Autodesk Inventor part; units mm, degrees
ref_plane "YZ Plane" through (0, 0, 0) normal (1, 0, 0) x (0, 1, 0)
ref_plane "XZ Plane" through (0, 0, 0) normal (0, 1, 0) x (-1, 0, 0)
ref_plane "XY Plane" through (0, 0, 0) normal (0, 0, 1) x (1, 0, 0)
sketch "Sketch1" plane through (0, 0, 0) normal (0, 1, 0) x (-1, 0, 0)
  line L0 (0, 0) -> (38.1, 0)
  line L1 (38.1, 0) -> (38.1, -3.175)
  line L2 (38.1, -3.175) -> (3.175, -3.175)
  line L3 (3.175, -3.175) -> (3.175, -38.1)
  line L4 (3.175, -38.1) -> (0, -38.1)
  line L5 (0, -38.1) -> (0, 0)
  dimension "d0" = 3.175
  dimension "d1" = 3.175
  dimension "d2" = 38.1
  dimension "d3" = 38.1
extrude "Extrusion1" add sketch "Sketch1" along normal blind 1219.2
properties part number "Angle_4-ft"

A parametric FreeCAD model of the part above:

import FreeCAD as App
import Part
import Sketcher

V = App.Vector
Q = App.Units.Quantity


def add_polygon(sketch, points):
    """Adds a closed chain of lines whose ends are joined by coincident constraints."""
    first, n = sketch.GeometryCount, len(points)
    for a, b in zip(points, points[1:] + points[:1]):
        sketch.addGeometry(Part.LineSegment(App.Vector(*a, 0), App.Vector(*b, 0)), False)
    for i in range(n):
        sketch.addConstraint(Sketcher.Constraint("Coincident", first + i, 2, first + (i + 1) % n, 1))

doc = App.newDocument("Part")
body = doc.addObject("PartDesign::Body", "Body")

# Sketch on XZ plane
sketch1 = body.newObject("Sketcher::SketchObject", "Sketch")
sketch1.AttachmentSupport = (doc.getObject("XZ_Plane"), [""])
sketch1.MapMode = "FlatFace"
add_polygon(sketch1, [(-38.1, 0), (0, 0), (0, -38.1), (-3.175, -38.1), (-3.175, -3.175), (-38.1, -3.175)])  # lines 0-5
sketch1.addConstraint([
    Sketcher.Constraint("Horizontal", 0),
    Sketcher.Constraint("Vertical", 1),
    Sketcher.Constraint("Horizontal", 2),
    Sketcher.Constraint("Vertical", 3),
    Sketcher.Constraint("Horizontal", 4),
    Sketcher.Constraint("Vertical", 5),
    Sketcher.Constraint("Coincident", 0, 2, -1, 1),
    Sketcher.Constraint("Equal", 0, 1),
    Sketcher.Constraint("Equal", 4, 3),
    Sketcher.Constraint("DistanceX", 0, 1, 0, 2, Q("1.5 in")),
    Sketcher.Constraint("DistanceX", 2, 2, 2, 1, Q("0.125 in")),
])
pad1 = body.newObject("PartDesign::Pad", "Pad")
pad1.Profile = sketch1
pad1.Length = Q("48 in")
pad1.Reversed = True

doc.recompute()
